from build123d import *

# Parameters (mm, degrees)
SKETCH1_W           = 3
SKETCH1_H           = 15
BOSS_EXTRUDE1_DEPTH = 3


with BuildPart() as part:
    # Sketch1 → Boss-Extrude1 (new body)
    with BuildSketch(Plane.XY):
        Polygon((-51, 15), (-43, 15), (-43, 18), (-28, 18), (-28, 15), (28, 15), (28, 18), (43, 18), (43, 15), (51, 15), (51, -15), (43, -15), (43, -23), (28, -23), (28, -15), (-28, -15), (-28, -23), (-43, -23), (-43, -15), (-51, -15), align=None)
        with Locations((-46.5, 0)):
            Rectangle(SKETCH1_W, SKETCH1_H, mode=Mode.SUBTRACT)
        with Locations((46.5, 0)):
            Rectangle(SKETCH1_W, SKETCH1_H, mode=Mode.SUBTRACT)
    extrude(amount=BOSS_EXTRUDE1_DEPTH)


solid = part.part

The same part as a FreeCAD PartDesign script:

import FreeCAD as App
import Part
import Sketcher

V = App.Vector
Q = App.Units.Quantity


def add_polygon(sketch, points):
    """Adds a closed chain of lines whose ends are joined by coincident constraints."""
    first, n = sketch.GeometryCount, len(points)
    for a, b in zip(points, points[1:] + points[:1]):
        sketch.addGeometry(Part.LineSegment(App.Vector(*a, 0), App.Vector(*b, 0)), False)
    for i in range(n):
        sketch.addConstraint(Sketcher.Constraint("Coincident", first + i, 2, first + (i + 1) % n, 1))

doc = App.newDocument("Part")
body = doc.addObject("PartDesign::Body", "Body")

sketch1 = body.newObject("Sketcher::SketchObject", "Sketch")
sketch1.AttachmentSupport = (doc.getObject("XY_Plane"), [""])
sketch1.MapMode = "FlatFace"
add_polygon(sketch1, [(-43, 15), (-51, 15), (-51, -15), (-43, -15), (-43, -23), (-28, -23), (-28, -15), (28, -15), (28, -23), (43, -23), (43, -15), (51, -15), (51, 15), (43, 15), (43, 18), (28, 18), (28, 15), (-28, 15), (-28, 18), (-43, 18)])
add_polygon(sketch1, [(45, -7.5), (45, 7.5), (48, 7.5), (48, -7.5)])
add_polygon(sketch1, [(-48, -7.5), (-48, 7.5), (-45, 7.5), (-45, -7.5)])
sketch1.addConstraint(Sketcher.Constraint("Horizontal", 0))
sketch1.addConstraint(Sketcher.Constraint("Vertical", 1))
sketch1.addConstraint(Sketcher.Constraint("Horizontal", 2))
sketch1.addConstraint(Sketcher.Constraint("Vertical", 3))
sketch1.addConstraint(Sketcher.Constraint("Horizontal", 4))
sketch1.addConstraint(Sketcher.Constraint("Vertical", 5))
sketch1.addConstraint(Sketcher.Constraint("Horizontal", 6))
sketch1.addConstraint(Sketcher.Constraint("Vertical", 7))
sketch1.addConstraint(Sketcher.Constraint("Horizontal", 8))
sketch1.addConstraint(Sketcher.Constraint("Vertical", 9))
sketch1.addConstraint(Sketcher.Constraint("Horizontal", 10))
sketch1.addConstraint(Sketcher.Constraint("Vertical", 11))
sketch1.addConstraint(Sketcher.Constraint("Horizontal", 12))
sketch1.addConstraint(Sketcher.Constraint("Vertical", 13))
sketch1.addConstraint(Sketcher.Constraint("Horizontal", 14))
sketch1.addConstraint(Sketcher.Constraint("Vertical", 15))
sketch1.addConstraint(Sketcher.Constraint("Horizontal", 16))
sketch1.addConstraint(Sketcher.Constraint("Vertical", 17))
sketch1.addConstraint(Sketcher.Constraint("Horizontal", 18))
sketch1.addConstraint(Sketcher.Constraint("Vertical", 19))
sketch1.addConstraint(Sketcher.Constraint("Vertical", 20))
sketch1.addConstraint(Sketcher.Constraint("Horizontal", 21))
sketch1.addConstraint(Sketcher.Constraint("Vertical", 22))
sketch1.addConstraint(Sketcher.Constraint("Horizontal", 23))
sketch1.addConstraint(Sketcher.Constraint("Vertical", 24))
sketch1.addConstraint(Sketcher.Constraint("Horizontal", 25))
sketch1.addConstraint(Sketcher.Constraint("Vertical", 26))
sketch1.addConstraint(Sketcher.Constraint("Horizontal", 27))
sketch1.addConstraint(Sketcher.Constraint("Symmetric", 0, 2, 10, 2, -1, 1))
sketch1.addConstraint(Sketcher.Constraint("Symmetric", 2, 2, 12, 2, -1, 1))
sketch1.addConstraint(Sketcher.Constraint("Symmetric", 5, 2, 15, 2, -1, 1))
sketch1.addConstraint(Sketcher.Constraint("Symmetric", 22, 2, 24, 2, -1, 1))
sketch1.addConstraint(Sketcher.Constraint("Symmetric", 20, 2, 26, 2, -1, 1))
sketch1.addConstraint(Sketcher.Constraint("Symmetric", 4, 2, 7, 2, -2))
sketch1.addConstraint(Sketcher.Constraint("Symmetric", 2, 2, 9, 2, -2))
sketch1.addConstraint(Sketcher.Constraint("Symmetric", 14, 2, 17, 2, -2))
sketch1.addConstraint(Sketcher.Constraint("Horizontal", 2, 2, 5, 2))
sketch1.addConstraint(Sketcher.Constraint("Horizontal", 21, 2, 24, 2))
sketch1.addConstraint(Sketcher.Constraint("Vertical", 3, 2, 18, 2))
sketch1.addConstraint(Sketcher.Constraint("Equal", 12, 3))
sketch1.addConstraint(Sketcher.Constraint("Equal", 27, 13))
sketch1.addConstraint(Sketcher.Constraint("Equal", 18, 20))
sketch1.addConstraint(Sketcher.Constraint("DistanceX", 0, 2, 0, 1, Q("8 mm")))
sketch1.addConstraint(Sketcher.Constraint("DistanceX", 4, 1, 4, 2, Q("15 mm")))
sketch1.addConstraint(Sketcher.Constraint("DistanceX", 6, 1, 6, 2, Q("56 mm")))
sketch1.addConstraint(Sketcher.Constraint("DistanceX", 21, 1, 21, 2, Q("3 mm")))
sketch1.addConstraint(Sketcher.Constraint("DistanceY", 1, 2, 1, 1, Q("30 mm")))
sketch1.addConstraint(Sketcher.Constraint("DistanceX", -1, 1, 20, 2, Q("45 mm")))
pad1 = body.newObject("PartDesign::Pad", "Pad")
pad1.Profile = sketch1
pad1.Length = 3

doc.recompute()
